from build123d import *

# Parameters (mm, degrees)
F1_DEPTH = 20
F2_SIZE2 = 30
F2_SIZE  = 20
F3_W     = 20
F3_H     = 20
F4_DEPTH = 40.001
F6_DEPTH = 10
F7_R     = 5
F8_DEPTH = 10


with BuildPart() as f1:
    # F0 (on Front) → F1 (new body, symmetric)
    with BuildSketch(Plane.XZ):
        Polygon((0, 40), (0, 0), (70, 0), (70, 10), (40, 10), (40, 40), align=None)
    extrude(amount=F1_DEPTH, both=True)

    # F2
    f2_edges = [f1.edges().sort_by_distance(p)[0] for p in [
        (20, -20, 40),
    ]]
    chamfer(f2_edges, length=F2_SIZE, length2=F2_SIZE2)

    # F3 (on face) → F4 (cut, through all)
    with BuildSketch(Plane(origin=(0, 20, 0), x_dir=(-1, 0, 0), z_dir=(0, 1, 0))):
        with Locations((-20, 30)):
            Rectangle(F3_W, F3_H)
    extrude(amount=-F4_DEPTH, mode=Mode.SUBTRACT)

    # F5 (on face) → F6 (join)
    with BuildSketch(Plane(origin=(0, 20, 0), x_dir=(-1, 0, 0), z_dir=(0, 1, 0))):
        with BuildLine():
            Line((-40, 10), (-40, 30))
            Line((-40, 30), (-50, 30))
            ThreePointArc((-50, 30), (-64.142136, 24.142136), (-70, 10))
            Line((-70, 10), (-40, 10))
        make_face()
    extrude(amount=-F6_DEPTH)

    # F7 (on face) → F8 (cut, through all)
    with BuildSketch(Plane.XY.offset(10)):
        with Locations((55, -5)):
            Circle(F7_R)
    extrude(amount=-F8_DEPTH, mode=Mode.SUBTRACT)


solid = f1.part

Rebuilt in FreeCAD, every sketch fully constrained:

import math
import FreeCAD as App
import Part
import Sketcher
from FreeCAD import Vector
Q = App.Units.Quantity


def edges_at(feature, points):
    """Names of the edges that pass closest to the given points."""
    edges = feature.Shape.Edges
    near = lambda p: min(range(len(edges)), key=lambda i: edges[i].distToShape(Part.Vertex(*p))[0])
    return sorted({f"Edge{near(p) + 1}" for p in points})

doc = App.newDocument("Part")
params = doc.addObject("Spreadsheet::Sheet", "Params")
for row, (alias, value) in enumerate([
    ("sketch1_width", "70 mm"),
    ("sketch1_width2", "30 mm"),
    ("pad1_length", "40 mm"),
    ("chamfer_size", "20 mm"),
    ("chamfer_size2", "30 mm"),
    ("sketch2_width", "20 mm"),
    ("sketch3_radius", "19.999999 mm"),
    ("sketch3_width", "10 mm"),
    ("sketch3_height", "20 mm"),
    ("pad2_length", "10 mm"),
    ("sketch4_diameter", "10 mm"),
], start=1):
    params.set(f"A{row}", alias)
    params.set(f"B{row}", "=" + value)
    params.setAlias(f"B{row}", alias)

body = doc.addObject("PartDesign::Body", "Body")

# Sketch on XZ plane
sketch1 = doc.addObject("Sketcher::SketchObject", "Sketch")
body.addObject(sketch1)
sketch1.AttachmentSupport = (doc.XZ_Plane, [""])
sketch1.MapMode = "FlatFace"
sketch1.addGeometry([
    Part.LineSegment(Vector(0, 40, 0), Vector(0, 0, 0)),  # 0
    Part.LineSegment(Vector(0, 0, 0), Vector(70, 0, 0)),  # 1
    Part.LineSegment(Vector(70, 0, 0), Vector(70, 10, 0)),  # 2
    Part.LineSegment(Vector(70, 10, 0), Vector(40, 10, 0)),  # 3
    Part.LineSegment(Vector(40, 10, 0), Vector(40, 40, 0)),  # 4
    Part.LineSegment(Vector(40, 40, 0), Vector(0, 40, 0)),  # 5
], False)
sketch1.addConstraint([
    Sketcher.Constraint("Coincident", 0, 2, 1, 1),
    Sketcher.Constraint("Coincident", 1, 2, 2, 1),
    Sketcher.Constraint("Coincident", 2, 2, 3, 1),
    Sketcher.Constraint("Coincident", 3, 2, 4, 1),
    Sketcher.Constraint("Coincident", 4, 2, 5, 1),
    Sketcher.Constraint("Coincident", 5, 2, 0, 1),
    Sketcher.Constraint("Vertical", 0),
    Sketcher.Constraint("Horizontal", 1),
    Sketcher.Constraint("Vertical", 2),
    Sketcher.Constraint("Horizontal", 3),
    Sketcher.Constraint("Vertical", 4),
    Sketcher.Constraint("Horizontal", 5),
    Sketcher.Constraint("Coincident", 0, 2, -1, 1),
    Sketcher.Constraint("Equal", 5, 0),
    Sketcher.Constraint("Equal", 3, 4),
    Sketcher.Constraint("DistanceX", 1, 1, 1, 2, Q("70 mm")),
    Sketcher.Constraint("DistanceX", 3, 2, 3, 1, Q("30 mm")),
])
sketch1.setExpression("Constraints[15]", "Params.sketch1_width")
sketch1.setExpression("Constraints[16]", "Params.sketch1_width2")
pad1 = doc.addObject("PartDesign::Pad", "Pad")
body.addObject(pad1)
pad1.Profile = sketch1
pad1.setExpression("Length", "Params.pad1_length")
pad1.Midplane = True
doc.recompute()

chamfer = doc.addObject("PartDesign::Chamfer", "Chamfer")
body.addObject(chamfer)
chamfer.Base = (pad1, edges_at(pad1, [(20, -20, 40)]))
chamfer.ChamferType = "Two distances"
chamfer.setExpression("Size", "Params.chamfer_size")
chamfer.setExpression("Size2", "Params.chamfer_size2")

# Sketch on XZ plane
sketch2 = doc.addObject("Sketcher::SketchObject", "Sketch001")
body.addObject(sketch2)
sketch2.AttachmentSupport = (doc.XZ_Plane, [""])
sketch2.MapMode = "FlatFace"
sketch2.AttachmentOffset = App.Placement(Vector(0, 0, -20), App.Rotation())
sketch2.addGeometry([
    Part.LineSegment(Vector(30, 40, 0), Vector(30, 20, 0)),
    Part.LineSegment(Vector(30, 20, 0), Vector(10, 20, 0)),
    Part.LineSegment(Vector(10, 20, 0), Vector(10, 40, 0)),
    Part.LineSegment(Vector(10, 40, 0), Vector(30, 40, 0)),
], False)
sketch2.addConstraint([
    Sketcher.Constraint("Coincident", 0, 2, 1, 1),
    Sketcher.Constraint("Coincident", 1, 2, 2, 1),
    Sketcher.Constraint("Coincident", 2, 2, 3, 1),
    Sketcher.Constraint("Coincident", 3, 2, 0, 1),
    Sketcher.Constraint("Vertical", 0),
    Sketcher.Constraint("Horizontal", 1),
    Sketcher.Constraint("Vertical", 2),
    Sketcher.Constraint("Horizontal", 3),
    Sketcher.Constraint("Equal", 3, 0),
    Sketcher.Constraint("DistanceX", 1, 2, 1, 1, Q("20 mm")),
    Sketcher.Constraint("DistanceX", -1, 1, 0, 2, Q("30 mm")),
    Sketcher.Constraint("DistanceY", -1, 1, 0, 2, Q("20 mm")),
])
sketch2.setExpression("Constraints[9]", "Params.sketch2_width")
pocket1 = doc.addObject("PartDesign::Pocket", "Pocket")
body.addObject(pocket1)
pocket1.Profile = sketch2
pocket1.Type = "ThroughAll"
pocket1.Reversed = True

# Sketch on XZ plane
sketch3 = doc.addObject("Sketcher::SketchObject", "Sketch002")
body.addObject(sketch3)
sketch3.AttachmentSupport = (doc.XZ_Plane, [""])
sketch3.MapMode = "FlatFace"
sketch3.AttachmentOffset = App.Placement(Vector(0, 0, -20), App.Rotation())
sketch3.addGeometry([
    Part.LineSegment(Vector(40, 10, 0), Vector(40, 30, 0)),
    Part.LineSegment(Vector(40, 30, 0), Vector(50, 30, 0)),
    Part.ArcOfCircle(Part.Circle(Vector(50, 10, 0), Vector(0, 0, 1), 20), math.radians(0), math.radians(90)),
    Part.LineSegment(Vector(70, 10, 0), Vector(40, 10, 0)),
], False)
sketch3.addConstraint([
    Sketcher.Constraint("Coincident", 0, 2, 1, 1),
    Sketcher.Constraint("Tangent", 1, 2, 2, 2),
    Sketcher.Constraint("Coincident", 2, 1, 3, 1),
    Sketcher.Constraint("Coincident", 3, 2, 0, 1),
    Sketcher.Constraint("Vertical", 0),
    Sketcher.Constraint("Horizontal", 1),
    Sketcher.Constraint("Horizontal", 3),
    Sketcher.Constraint("Radius", 2, Q("19.999999 mm")),
    Sketcher.Constraint("DistanceX", 1, 1, 1, 2, Q("10 mm")),
    Sketcher.Constraint("DistanceY", 0, 1, 0, 2, Q("20 mm")),
    Sketcher.Constraint("DistanceX", -1, 1, 2, 3, Q("50.000001 mm")),
    Sketcher.Constraint("DistanceY", -1, 1, 2, 3, Q("10.000001 mm")),
])
sketch3.setExpression("Constraints[7]", "Params.sketch3_radius")
sketch3.setExpression("Constraints[8]", "Params.sketch3_width")
sketch3.setExpression("Constraints[9]", "Params.sketch3_height")
pad2 = doc.addObject("PartDesign::Pad", "Pad001")
body.addObject(pad2)
pad2.Profile = sketch3
pad2.setExpression("Length", "Params.pad2_length")

# Sketch on XY plane
sketch4 = doc.addObject("Sketcher::SketchObject", "Sketch003")
body.addObject(sketch4)
sketch4.AttachmentSupport = (doc.XY_Plane, [""])
sketch4.MapMode = "FlatFace"
sketch4.AttachmentOffset = App.Placement(Vector(0, 0, 10), App.Rotation())
sketch4.addGeometry(Part.Circle(Vector(55, -5, 0), Vector(0, 0, 1), 5), False)
sketch4.addConstraint([
    Sketcher.Constraint("Diameter", 0, Q("10 mm")),
    Sketcher.Constraint("DistanceX", -1, 1, 0, 3, Q("55 mm")),
    Sketcher.Constraint("DistanceY", 0, 3, -1, 1, Q("5 mm")),
])
sketch4.setExpression("Constraints[0]", "Params.sketch4_diameter")
pocket2 = doc.addObject("PartDesign::Pocket", "Pocket001")
body.addObject(pocket2)
pocket2.Profile = sketch4
pocket2.Type = "ThroughAll"

doc.recompute()
